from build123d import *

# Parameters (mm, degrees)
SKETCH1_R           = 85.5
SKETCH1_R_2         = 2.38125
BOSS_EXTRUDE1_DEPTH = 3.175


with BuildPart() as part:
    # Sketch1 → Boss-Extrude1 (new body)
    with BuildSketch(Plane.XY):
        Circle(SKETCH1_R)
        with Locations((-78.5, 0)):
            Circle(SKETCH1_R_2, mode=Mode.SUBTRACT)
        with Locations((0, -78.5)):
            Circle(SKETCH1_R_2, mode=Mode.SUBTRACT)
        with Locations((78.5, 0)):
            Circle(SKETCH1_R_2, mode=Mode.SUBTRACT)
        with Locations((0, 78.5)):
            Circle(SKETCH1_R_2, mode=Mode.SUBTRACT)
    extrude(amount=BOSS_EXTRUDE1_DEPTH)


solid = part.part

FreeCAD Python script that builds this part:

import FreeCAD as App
import Part
import Sketcher

V = App.Vector
Q = App.Units.Quantity

doc = App.newDocument("Part")
body = doc.addObject("PartDesign::Body", "Body")

sketch1 = body.newObject("Sketcher::SketchObject", "Sketch")
sketch1.AttachmentSupport = (doc.getObject("XY_Plane"), [""])
sketch1.MapMode = "FlatFace"
sketch1.addGeometry([
    Part.Circle(V(0, 0, 0), V(0, 0, 1), 85.5),
    Part.Circle(V(0, -78.5, 0), V(0, 0, 1), 2.4),
    Part.Circle(V(-78.5, 0, 0), V(0, 0, 1), 2.4),
    Part.Circle(V(78.5, 0, 0), V(0, 0, 1), 2.4),
    Part.Circle(V(0, 78.5, 0), V(0, 0, 1), 2.4),
], False)
sketch1.addConstraint([
    Sketcher.Constraint("Coincident", 0, 3, -1, 1),
    Sketcher.Constraint("Equal", 1, 2),
    Sketcher.Constraint("Equal", 2, 3),
    Sketcher.Constraint("Equal", 3, 4),
    Sketcher.Constraint("Symmetric", 2, 3, 3, 3, -1, 1),
    Sketcher.Constraint("Symmetric", 1, 3, 4, 3, -1, 1),
    Sketcher.Constraint("PointOnObject", 1, 3, -2),
    Sketcher.Constraint("PointOnObject", 2, 3, -1),
    Sketcher.Constraint("Diameter", 1, Q("0.1875 in")),
    Sketcher.Constraint("Diameter", 0, Q("171 mm")),
    Sketcher.Constraint("DistanceY", 1, 3, -1, 1, Q("78.5 mm")),
    Sketcher.Constraint("DistanceX", 2, 3, -1, 1, Q("78.5 mm")),
])
pad1 = body.newObject("PartDesign::Pad", "Pad")
pad1.Profile = sketch1
pad1.Length = Q("0.125 in")

doc.recompute()
